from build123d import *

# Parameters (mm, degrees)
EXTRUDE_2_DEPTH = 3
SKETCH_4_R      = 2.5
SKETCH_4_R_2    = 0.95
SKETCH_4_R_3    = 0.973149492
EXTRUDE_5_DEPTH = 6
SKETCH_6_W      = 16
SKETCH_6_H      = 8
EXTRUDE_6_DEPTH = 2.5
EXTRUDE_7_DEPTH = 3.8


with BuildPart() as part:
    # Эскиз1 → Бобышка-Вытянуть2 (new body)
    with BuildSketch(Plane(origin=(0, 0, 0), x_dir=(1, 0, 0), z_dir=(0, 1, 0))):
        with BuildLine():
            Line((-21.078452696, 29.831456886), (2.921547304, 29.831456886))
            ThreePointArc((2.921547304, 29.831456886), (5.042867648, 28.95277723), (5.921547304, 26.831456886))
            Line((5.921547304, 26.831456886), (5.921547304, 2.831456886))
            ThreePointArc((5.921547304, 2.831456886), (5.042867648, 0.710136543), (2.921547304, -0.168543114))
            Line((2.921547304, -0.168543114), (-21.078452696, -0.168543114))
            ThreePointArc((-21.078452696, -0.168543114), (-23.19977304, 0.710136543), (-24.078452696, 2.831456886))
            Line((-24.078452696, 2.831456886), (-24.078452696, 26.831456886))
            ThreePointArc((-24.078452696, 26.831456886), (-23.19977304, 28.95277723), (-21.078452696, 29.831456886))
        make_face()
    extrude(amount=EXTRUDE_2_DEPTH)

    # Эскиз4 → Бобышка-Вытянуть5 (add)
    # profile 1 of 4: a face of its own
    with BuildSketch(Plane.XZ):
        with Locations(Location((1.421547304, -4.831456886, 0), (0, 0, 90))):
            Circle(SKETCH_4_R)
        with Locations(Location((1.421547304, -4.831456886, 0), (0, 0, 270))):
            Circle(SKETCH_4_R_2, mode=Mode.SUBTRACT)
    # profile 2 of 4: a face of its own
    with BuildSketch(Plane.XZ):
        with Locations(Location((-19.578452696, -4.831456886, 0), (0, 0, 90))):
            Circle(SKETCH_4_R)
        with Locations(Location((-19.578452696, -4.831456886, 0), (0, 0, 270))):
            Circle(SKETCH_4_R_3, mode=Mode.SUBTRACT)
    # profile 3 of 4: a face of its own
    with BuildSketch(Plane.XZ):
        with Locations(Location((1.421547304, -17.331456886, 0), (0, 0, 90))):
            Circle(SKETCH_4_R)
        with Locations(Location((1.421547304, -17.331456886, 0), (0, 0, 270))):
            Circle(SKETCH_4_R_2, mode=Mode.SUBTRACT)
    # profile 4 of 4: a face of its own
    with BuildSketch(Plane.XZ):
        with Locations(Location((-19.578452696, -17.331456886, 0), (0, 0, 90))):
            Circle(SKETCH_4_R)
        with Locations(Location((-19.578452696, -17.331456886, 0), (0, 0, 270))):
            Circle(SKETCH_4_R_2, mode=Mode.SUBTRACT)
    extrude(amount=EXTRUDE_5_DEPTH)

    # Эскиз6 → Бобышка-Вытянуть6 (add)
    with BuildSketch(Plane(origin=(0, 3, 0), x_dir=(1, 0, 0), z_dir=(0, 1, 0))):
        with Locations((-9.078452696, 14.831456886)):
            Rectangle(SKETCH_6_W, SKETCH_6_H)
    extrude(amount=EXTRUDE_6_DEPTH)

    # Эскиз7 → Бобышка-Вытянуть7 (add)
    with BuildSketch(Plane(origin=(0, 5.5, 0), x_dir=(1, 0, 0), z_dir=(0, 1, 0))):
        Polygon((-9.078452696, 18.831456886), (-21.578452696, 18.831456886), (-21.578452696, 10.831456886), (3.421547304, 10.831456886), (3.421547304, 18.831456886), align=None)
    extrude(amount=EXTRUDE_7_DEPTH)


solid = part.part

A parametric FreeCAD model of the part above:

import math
import FreeCAD as App
import Part
import Sketcher

V = App.Vector

doc = App.newDocument("Part")
params = doc.addObject("Spreadsheet::Sheet", "Params")
for row, (alias, value) in enumerate([
    ("sketch1_radius", "3 mm"),
    ("sketch1_width", "24 mm"),
    ("pad1_length", "3 mm"),
    ("sketch2_diameter", "5 mm"),
    ("sketch2_diameter2", "1.9 mm"),
    ("pad2_length", "6 mm"),
    ("sketch3_width", "16 mm"),
    ("sketch3_height", "8 mm"),
    ("pad3_length", "2.5 mm"),
    ("sketch4_width", "25 mm"),
    ("sketch4_height", "8 mm"),
    ("pad4_length", "3.8 mm"),
], start=1):
    params.set(f"A{row}", alias)
    params.set(f"B{row}", "=" + value)
    params.setAlias(f"B{row}", alias)

body = doc.addObject("PartDesign::Body", "Body")

sketch1 = doc.addObject("Sketcher::SketchObject", "Sketch")
body.addObject(sketch1)
sketch1.AttachmentSupport = (doc.XZ_Plane, [""])
sketch1.MapMode = "FlatFace"
sketch1.addGeometry(Part.LineSegment(V(2.921547, -29.831457, 0), V(-21.078453, -29.831457, 0)), False)
sketch1.addGeometry(Part.ArcOfCircle(Part.Circle(V(-21.078453, -26.831457, 0), V(0, 0, 1), 3), math.radians(180), math.radians(270)), False)
sketch1.addGeometry(Part.LineSegment(V(-24.078453, -26.831457, 0), V(-24.078453, -2.831457, 0)), False)
sketch1.addGeometry(Part.ArcOfCircle(Part.Circle(V(-21.078453, -2.831457, 0), V(0, 0, 1), 3), math.radians(90), math.radians(180)), False)
sketch1.addGeometry(Part.LineSegment(V(-21.078453, 0.168543, 0), V(2.921547, 0.168543, 0)), False)
sketch1.addGeometry(Part.ArcOfCircle(Part.Circle(V(2.921547, -2.831457, 0), V(0, 0, 1), 3), math.radians(0), math.radians(90)), False)
sketch1.addGeometry(Part.LineSegment(V(5.921547, -2.831457, 0), V(5.921547, -26.831457, 0)), False)
sketch1.addGeometry(Part.ArcOfCircle(Part.Circle(V(2.921547, -26.831457, 0), V(0, 0, 1), 3), math.radians(-90), math.radians(0)), False)
sketch1.addConstraint(Sketcher.Constraint("Tangent", 0, 2, 1, 2))
sketch1.addConstraint(Sketcher.Constraint("Tangent", 1, 1, 2, 1))
sketch1.addConstraint(Sketcher.Constraint("Tangent", 2, 2, 3, 2))
sketch1.addConstraint(Sketcher.Constraint("Tangent", 3, 1, 4, 1))
sketch1.addConstraint(Sketcher.Constraint("Tangent", 4, 2, 5, 2))
sketch1.addConstraint(Sketcher.Constraint("Tangent", 5, 1, 6, 1))
sketch1.addConstraint(Sketcher.Constraint("Tangent", 6, 2, 7, 2))
sketch1.addConstraint(Sketcher.Constraint("Tangent", 7, 1, 0, 1))
sketch1.addConstraint(Sketcher.Constraint("Horizontal", 0))
sketch1.addConstraint(Sketcher.Constraint("Vertical", 2))
sketch1.addConstraint(Sketcher.Constraint("Horizontal", 4))
sketch1.addConstraint(Sketcher.Constraint("Vertical", 6))
sketch1.addConstraint(Sketcher.Constraint("Equal", 1, 3))
sketch1.addConstraint(Sketcher.Constraint("Equal", 3, 5))
sketch1.addConstraint(Sketcher.Constraint("Equal", 5, 7))
sketch1.addConstraint(Sketcher.Constraint("Equal", 4, 2))
sketch1.addConstraint(Sketcher.Constraint("Radius", 1, 3.0))
sketch1.addConstraint(Sketcher.Constraint("DistanceX", 0, 2, 0, 1, 24.0))
sketch1.addConstraint(Sketcher.Constraint("DistanceX", 1, 3, -1, 1, 21.078453))
sketch1.addConstraint(Sketcher.Constraint("DistanceY", 1, 3, -1, 1, 26.831457))
sketch1.setExpression("Constraints[16]", "Params.sketch1_radius")
sketch1.setExpression("Constraints[17]", "Params.sketch1_width")
pad1 = doc.addObject("PartDesign::Pad", "Pad")
body.addObject(pad1)
pad1.Profile = sketch1
pad1.setExpression("Length", "Params.pad1_length")
pad1.Reversed = True

sketch2 = doc.addObject("Sketcher::SketchObject", "Sketch001")
body.addObject(sketch2)
sketch2.AttachmentSupport = (doc.XZ_Plane, [""])
sketch2.MapMode = "FlatFace"
sketch2.addGeometry(Part.Circle(V(1.421547, -4.831457, 0), V(0, 0, 1), 2.5), False)
sketch2.addGeometry(Part.Circle(V(1.421547, -4.831457, 0), V(0, 0, 1), 0.95), False)
sketch2.addGeometry(Part.Circle(V(-19.578453, -4.831457, 0), V(0, 0, 1), 2.5), False)
sketch2.addGeometry(Part.Circle(V(-19.578453, -4.831457, 0), V(0, 0, 1), 0.973149), False)
sketch2.addGeometry(Part.Circle(V(1.421547, -17.331457, 0), V(0, 0, 1), 2.5), False)
sketch2.addGeometry(Part.Circle(V(1.421547, -17.331457, 0), V(0, 0, 1), 0.95), False)
sketch2.addGeometry(Part.Circle(V(-19.578453, -17.331457, 0), V(0, 0, 1), 2.5), False)
sketch2.addGeometry(Part.Circle(V(-19.578453, -17.331457, 0), V(0, 0, 1), 0.95), False)
sketch2.addConstraint(Sketcher.Constraint("Coincident", 1, 3, 0, 3))
sketch2.addConstraint(Sketcher.Constraint("Coincident", 3, 3, 2, 3))
sketch2.addConstraint(Sketcher.Constraint("Coincident", 5, 3, 4, 3))
sketch2.addConstraint(Sketcher.Constraint("Coincident", 7, 3, 6, 3))
sketch2.addConstraint(Sketcher.Constraint("Equal", 0, 2))
sketch2.addConstraint(Sketcher.Constraint("Equal", 2, 4))
sketch2.addConstraint(Sketcher.Constraint("Equal", 1, 5))
sketch2.addConstraint(Sketcher.Constraint("Equal", 4, 6))
sketch2.addConstraint(Sketcher.Constraint("Equal", 5, 7))
sketch2.addConstraint(Sketcher.Constraint("Horizontal", 1, 3, 2, 3))
sketch2.addConstraint(Sketcher.Constraint("Horizontal", 5, 3, 6, 3))
sketch2.addConstraint(Sketcher.Constraint("Vertical", 1, 3, 4, 3))
sketch2.addConstraint(Sketcher.Constraint("Vertical", 3, 3, 6, 3))
sketch2.addConstraint(Sketcher.Constraint("Diameter", 0, 5.0))
sketch2.addConstraint(Sketcher.Constraint("Diameter", 1, 1.9))
sketch2.addConstraint(Sketcher.Constraint("DistanceX", 2, 3, 0, 3, 21.0))
sketch2.addConstraint(Sketcher.Constraint("Diameter", 3, 1.946299))
sketch2.addConstraint(Sketcher.Constraint("DistanceY", 4, 3, 0, 3, 12.5))
sketch2.addConstraint(Sketcher.Constraint("DistanceX", -1, 1, 0, 3, 1.421547))
sketch2.addConstraint(Sketcher.Constraint("DistanceY", 0, 3, -1, 1, 4.831457))
sketch2.setExpression("Constraints[13]", "Params.sketch2_diameter")
sketch2.setExpression("Constraints[14]", "Params.sketch2_diameter2")
pad2 = doc.addObject("PartDesign::Pad", "Pad001")
body.addObject(pad2)
pad2.Profile = sketch2
pad2.setExpression("Length", "Params.pad2_length")

sketch3 = doc.addObject("Sketcher::SketchObject", "Sketch002")
body.addObject(sketch3)
sketch3.AttachmentSupport = (doc.XZ_Plane, [""])
sketch3.MapMode = "FlatFace"
sketch3.AttachmentOffset = App.Placement(V(0, 0, -3), App.Rotation())
sketch3.addGeometry(Part.LineSegment(V(-17.078453, -18.831457, 0), V(-17.078453, -10.831457, 0)), False)
sketch3.addGeometry(Part.LineSegment(V(-17.078453, -10.831457, 0), V(-1.078453, -10.831457, 0)), False)
sketch3.addGeometry(Part.LineSegment(V(-1.078453, -10.831457, 0), V(-1.078453, -18.831457, 0)), False)
sketch3.addGeometry(Part.LineSegment(V(-1.078453, -18.831457, 0), V(-17.078453, -18.831457, 0)), False)
sketch3.addConstraint(Sketcher.Constraint("Coincident", 0, 2, 1, 1))
sketch3.addConstraint(Sketcher.Constraint("Coincident", 1, 2, 2, 1))
sketch3.addConstraint(Sketcher.Constraint("Coincident", 2, 2, 3, 1))
sketch3.addConstraint(Sketcher.Constraint("Coincident", 3, 2, 0, 1))
sketch3.addConstraint(Sketcher.Constraint("Vertical", 0))
sketch3.addConstraint(Sketcher.Constraint("Horizontal", 1))
sketch3.addConstraint(Sketcher.Constraint("Vertical", 2))
sketch3.addConstraint(Sketcher.Constraint("Horizontal", 3))
sketch3.addConstraint(Sketcher.Constraint("DistanceX", 1, 1, 1, 2, 16.0))
sketch3.addConstraint(Sketcher.Constraint("DistanceY", 0, 1, 0, 2, 8.0))
sketch3.addConstraint(Sketcher.Constraint("DistanceX", 0, 2, -1, 1, 17.078453))
sketch3.addConstraint(Sketcher.Constraint("DistanceY", 0, 2, -1, 1, 10.831457))
sketch3.setExpression("Constraints[8]", "Params.sketch3_width")
sketch3.setExpression("Constraints[9]", "Params.sketch3_height")
pad3 = doc.addObject("PartDesign::Pad", "Pad002")
body.addObject(pad3)
pad3.Profile = sketch3
pad3.setExpression("Length", "Params.pad3_length")
pad3.Reversed = True

sketch4 = doc.addObject("Sketcher::SketchObject", "Sketch003")
body.addObject(sketch4)
sketch4.AttachmentSupport = (doc.XZ_Plane, [""])
sketch4.MapMode = "FlatFace"
sketch4.AttachmentOffset = App.Placement(V(0, 0, -5.5), App.Rotation())
sketch4.addGeometry(Part.LineSegment(V(-21.578453, -18.831457, 0), V(-21.578453, -10.831457, 0)), False)
sketch4.addGeometry(Part.LineSegment(V(-21.578453, -10.831457, 0), V(3.421547, -10.831457, 0)), False)
sketch4.addGeometry(Part.LineSegment(V(3.421547, -10.831457, 0), V(3.421547, -18.831457, 0)), False)
sketch4.addGeometry(Part.LineSegment(V(3.421547, -18.831457, 0), V(-21.578453, -18.831457, 0)), False)
sketch4.addConstraint(Sketcher.Constraint("Coincident", 0, 2, 1, 1))
sketch4.addConstraint(Sketcher.Constraint("Coincident", 1, 2, 2, 1))
sketch4.addConstraint(Sketcher.Constraint("Coincident", 2, 2, 3, 1))
sketch4.addConstraint(Sketcher.Constraint("Coincident", 3, 2, 0, 1))
sketch4.addConstraint(Sketcher.Constraint("Vertical", 0))
sketch4.addConstraint(Sketcher.Constraint("Horizontal", 1))
sketch4.addConstraint(Sketcher.Constraint("Vertical", 2))
sketch4.addConstraint(Sketcher.Constraint("Horizontal", 3))
sketch4.addConstraint(Sketcher.Constraint("DistanceX", 1, 1, 1, 2, 25.0))
sketch4.addConstraint(Sketcher.Constraint("DistanceY", 0, 1, 0, 2, 8.0))
sketch4.addConstraint(Sketcher.Constraint("DistanceX", 0, 2, -1, 1, 21.578453))
sketch4.addConstraint(Sketcher.Constraint("DistanceY", 0, 2, -1, 1, 10.831457))
sketch4.setExpression("Constraints[8]", "Params.sketch4_width")
sketch4.setExpression("Constraints[9]", "Params.sketch4_height")
pad4 = doc.addObject("PartDesign::Pad", "Pad003")
body.addObject(pad4)
pad4.Profile = sketch4
pad4.setExpression("Length", "Params.pad4_length")
pad4.Reversed = True

doc.recompute()
